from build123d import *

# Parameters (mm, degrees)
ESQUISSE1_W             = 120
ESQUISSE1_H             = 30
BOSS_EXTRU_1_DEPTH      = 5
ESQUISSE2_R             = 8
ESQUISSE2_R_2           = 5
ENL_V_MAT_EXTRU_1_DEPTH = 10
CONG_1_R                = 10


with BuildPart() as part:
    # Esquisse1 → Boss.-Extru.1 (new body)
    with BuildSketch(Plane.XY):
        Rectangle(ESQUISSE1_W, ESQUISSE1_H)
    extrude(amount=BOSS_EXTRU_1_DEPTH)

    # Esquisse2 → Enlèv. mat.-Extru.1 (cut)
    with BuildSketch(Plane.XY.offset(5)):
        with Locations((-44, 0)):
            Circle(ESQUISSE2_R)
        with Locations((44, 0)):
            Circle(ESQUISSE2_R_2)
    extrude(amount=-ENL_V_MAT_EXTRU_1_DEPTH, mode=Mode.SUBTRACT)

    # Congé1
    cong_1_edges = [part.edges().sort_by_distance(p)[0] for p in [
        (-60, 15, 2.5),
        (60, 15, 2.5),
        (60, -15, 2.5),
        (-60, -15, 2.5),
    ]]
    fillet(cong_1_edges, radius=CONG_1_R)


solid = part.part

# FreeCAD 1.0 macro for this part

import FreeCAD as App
import Part
import Sketcher
from FreeCAD import Vector
Q = App.Units.Quantity


def edges_at(feature, points):
    """Names of the edges that pass closest to the given points."""
    edges = feature.Shape.Edges
    near = lambda p: min(range(len(edges)), key=lambda i: edges[i].distToShape(Part.Vertex(*p))[0])
    return sorted({f"Edge{near(p) + 1}" for p in points})


def add_polygon(sketch, points):
    """Adds a closed chain of lines whose ends are joined by coincident constraints."""
    first, n = sketch.GeometryCount, len(points)
    for a, b in zip(points, points[1:] + points[:1]):
        sketch.addGeometry(Part.LineSegment(App.Vector(*a, 0), App.Vector(*b, 0)), False)
    for i in range(n):
        sketch.addConstraint(Sketcher.Constraint("Coincident", first + i, 2, first + (i + 1) % n, 1))

doc = App.newDocument("Part")
params = doc.addObject("Spreadsheet::Sheet", "Params")
for row, (alias, value) in enumerate([
    ("sketch1_width", "120 mm"),
    ("sketch1_height", "30 mm"),
    ("pad1_length", "5 mm"),
    ("sketch2_diameter", "16 mm"),
    ("sketch2_diameter2", "10 mm"),
    ("pocket1_length", "10 mm"),
    ("fillet_radius", "10 mm"),
], start=1):
    params.set(f"A{row}", alias)
    params.set(f"B{row}", "=" + value)
    params.setAlias(f"B{row}", alias)

body = doc.addObject("PartDesign::Body", "Body")

# Sketch on XY plane
sketch1 = body.newObject("Sketcher::SketchObject", "Sketch")
sketch1.AttachmentSupport = (doc.getObject("XY_Plane"), [""])
sketch1.MapMode = "FlatFace"
add_polygon(sketch1, [(-60, 15), (-60, -15), (60, -15), (60, 15)])  # lines 0-3
sketch1.addConstraint(Sketcher.Constraint("Vertical", 0))
sketch1.addConstraint(Sketcher.Constraint("Horizontal", 1))
sketch1.addConstraint(Sketcher.Constraint("Vertical", 2))
sketch1.addConstraint(Sketcher.Constraint("Horizontal", 3))
sketch1.addConstraint(Sketcher.Constraint("Symmetric", 0, 2, 2, 2, -1, 1))
sketch1.addConstraint(Sketcher.Constraint("DistanceX", 1, 1, 1, 2, Q("120 mm")))
sketch1.addConstraint(Sketcher.Constraint("DistanceY", 0, 2, 0, 1, Q("30 mm")))
sketch1.setExpression("Constraints[9]", "Params.sketch1_width")
sketch1.setExpression("Constraints[10]", "Params.sketch1_height")
pad1 = body.newObject("PartDesign::Pad", "Pad")
pad1.Profile = sketch1
pad1.setExpression("Length", "Params.pad1_length")

# Sketch on XY plane
sketch2 = body.newObject("Sketcher::SketchObject", "Sketch001")
sketch2.AttachmentSupport = (doc.getObject("XY_Plane"), [""])
sketch2.MapMode = "FlatFace"
sketch2.AttachmentOffset = App.Placement(Vector(0, 0, 5), App.Rotation())
sketch2.addGeometry(Part.Circle(Vector(-44, 0, 0), Vector(0, 0, 1), 8), False)
sketch2.addGeometry(Part.Circle(Vector(44, 0, 0), Vector(0, 0, 1), 5), False)
sketch2.addConstraint(Sketcher.Constraint("Symmetric", 0, 3, 1, 3, -1, 1))
sketch2.addConstraint(Sketcher.Constraint("PointOnObject", 0, 3, -1))
sketch2.addConstraint(Sketcher.Constraint("Diameter", 0, Q("16 mm")))
sketch2.addConstraint(Sketcher.Constraint("Diameter", 1, Q("10 mm")))
sketch2.addConstraint(Sketcher.Constraint("DistanceX", 0, 3, -1, 1, Q("44 mm")))
sketch2.setExpression("Constraints[2]", "Params.sketch2_diameter")
sketch2.setExpression("Constraints[3]", "Params.sketch2_diameter2")
pocket1 = body.newObject("PartDesign::Pocket", "Pocket")
pocket1.Profile = sketch2
pocket1.setExpression("Length", "Params.pocket1_length")
doc.recompute()

fillet = body.newObject("PartDesign::Fillet", "Fillet")
fillet.Base = (pocket1, edges_at(pocket1, [
    (-60, 15, 2.5),
    (60, 15, 2.5),
    (60, -15, 2.5),
    (-60, -15, 2.5),
]))
fillet.setExpression("Radius", "Params.fillet_radius")

doc.recompute()
